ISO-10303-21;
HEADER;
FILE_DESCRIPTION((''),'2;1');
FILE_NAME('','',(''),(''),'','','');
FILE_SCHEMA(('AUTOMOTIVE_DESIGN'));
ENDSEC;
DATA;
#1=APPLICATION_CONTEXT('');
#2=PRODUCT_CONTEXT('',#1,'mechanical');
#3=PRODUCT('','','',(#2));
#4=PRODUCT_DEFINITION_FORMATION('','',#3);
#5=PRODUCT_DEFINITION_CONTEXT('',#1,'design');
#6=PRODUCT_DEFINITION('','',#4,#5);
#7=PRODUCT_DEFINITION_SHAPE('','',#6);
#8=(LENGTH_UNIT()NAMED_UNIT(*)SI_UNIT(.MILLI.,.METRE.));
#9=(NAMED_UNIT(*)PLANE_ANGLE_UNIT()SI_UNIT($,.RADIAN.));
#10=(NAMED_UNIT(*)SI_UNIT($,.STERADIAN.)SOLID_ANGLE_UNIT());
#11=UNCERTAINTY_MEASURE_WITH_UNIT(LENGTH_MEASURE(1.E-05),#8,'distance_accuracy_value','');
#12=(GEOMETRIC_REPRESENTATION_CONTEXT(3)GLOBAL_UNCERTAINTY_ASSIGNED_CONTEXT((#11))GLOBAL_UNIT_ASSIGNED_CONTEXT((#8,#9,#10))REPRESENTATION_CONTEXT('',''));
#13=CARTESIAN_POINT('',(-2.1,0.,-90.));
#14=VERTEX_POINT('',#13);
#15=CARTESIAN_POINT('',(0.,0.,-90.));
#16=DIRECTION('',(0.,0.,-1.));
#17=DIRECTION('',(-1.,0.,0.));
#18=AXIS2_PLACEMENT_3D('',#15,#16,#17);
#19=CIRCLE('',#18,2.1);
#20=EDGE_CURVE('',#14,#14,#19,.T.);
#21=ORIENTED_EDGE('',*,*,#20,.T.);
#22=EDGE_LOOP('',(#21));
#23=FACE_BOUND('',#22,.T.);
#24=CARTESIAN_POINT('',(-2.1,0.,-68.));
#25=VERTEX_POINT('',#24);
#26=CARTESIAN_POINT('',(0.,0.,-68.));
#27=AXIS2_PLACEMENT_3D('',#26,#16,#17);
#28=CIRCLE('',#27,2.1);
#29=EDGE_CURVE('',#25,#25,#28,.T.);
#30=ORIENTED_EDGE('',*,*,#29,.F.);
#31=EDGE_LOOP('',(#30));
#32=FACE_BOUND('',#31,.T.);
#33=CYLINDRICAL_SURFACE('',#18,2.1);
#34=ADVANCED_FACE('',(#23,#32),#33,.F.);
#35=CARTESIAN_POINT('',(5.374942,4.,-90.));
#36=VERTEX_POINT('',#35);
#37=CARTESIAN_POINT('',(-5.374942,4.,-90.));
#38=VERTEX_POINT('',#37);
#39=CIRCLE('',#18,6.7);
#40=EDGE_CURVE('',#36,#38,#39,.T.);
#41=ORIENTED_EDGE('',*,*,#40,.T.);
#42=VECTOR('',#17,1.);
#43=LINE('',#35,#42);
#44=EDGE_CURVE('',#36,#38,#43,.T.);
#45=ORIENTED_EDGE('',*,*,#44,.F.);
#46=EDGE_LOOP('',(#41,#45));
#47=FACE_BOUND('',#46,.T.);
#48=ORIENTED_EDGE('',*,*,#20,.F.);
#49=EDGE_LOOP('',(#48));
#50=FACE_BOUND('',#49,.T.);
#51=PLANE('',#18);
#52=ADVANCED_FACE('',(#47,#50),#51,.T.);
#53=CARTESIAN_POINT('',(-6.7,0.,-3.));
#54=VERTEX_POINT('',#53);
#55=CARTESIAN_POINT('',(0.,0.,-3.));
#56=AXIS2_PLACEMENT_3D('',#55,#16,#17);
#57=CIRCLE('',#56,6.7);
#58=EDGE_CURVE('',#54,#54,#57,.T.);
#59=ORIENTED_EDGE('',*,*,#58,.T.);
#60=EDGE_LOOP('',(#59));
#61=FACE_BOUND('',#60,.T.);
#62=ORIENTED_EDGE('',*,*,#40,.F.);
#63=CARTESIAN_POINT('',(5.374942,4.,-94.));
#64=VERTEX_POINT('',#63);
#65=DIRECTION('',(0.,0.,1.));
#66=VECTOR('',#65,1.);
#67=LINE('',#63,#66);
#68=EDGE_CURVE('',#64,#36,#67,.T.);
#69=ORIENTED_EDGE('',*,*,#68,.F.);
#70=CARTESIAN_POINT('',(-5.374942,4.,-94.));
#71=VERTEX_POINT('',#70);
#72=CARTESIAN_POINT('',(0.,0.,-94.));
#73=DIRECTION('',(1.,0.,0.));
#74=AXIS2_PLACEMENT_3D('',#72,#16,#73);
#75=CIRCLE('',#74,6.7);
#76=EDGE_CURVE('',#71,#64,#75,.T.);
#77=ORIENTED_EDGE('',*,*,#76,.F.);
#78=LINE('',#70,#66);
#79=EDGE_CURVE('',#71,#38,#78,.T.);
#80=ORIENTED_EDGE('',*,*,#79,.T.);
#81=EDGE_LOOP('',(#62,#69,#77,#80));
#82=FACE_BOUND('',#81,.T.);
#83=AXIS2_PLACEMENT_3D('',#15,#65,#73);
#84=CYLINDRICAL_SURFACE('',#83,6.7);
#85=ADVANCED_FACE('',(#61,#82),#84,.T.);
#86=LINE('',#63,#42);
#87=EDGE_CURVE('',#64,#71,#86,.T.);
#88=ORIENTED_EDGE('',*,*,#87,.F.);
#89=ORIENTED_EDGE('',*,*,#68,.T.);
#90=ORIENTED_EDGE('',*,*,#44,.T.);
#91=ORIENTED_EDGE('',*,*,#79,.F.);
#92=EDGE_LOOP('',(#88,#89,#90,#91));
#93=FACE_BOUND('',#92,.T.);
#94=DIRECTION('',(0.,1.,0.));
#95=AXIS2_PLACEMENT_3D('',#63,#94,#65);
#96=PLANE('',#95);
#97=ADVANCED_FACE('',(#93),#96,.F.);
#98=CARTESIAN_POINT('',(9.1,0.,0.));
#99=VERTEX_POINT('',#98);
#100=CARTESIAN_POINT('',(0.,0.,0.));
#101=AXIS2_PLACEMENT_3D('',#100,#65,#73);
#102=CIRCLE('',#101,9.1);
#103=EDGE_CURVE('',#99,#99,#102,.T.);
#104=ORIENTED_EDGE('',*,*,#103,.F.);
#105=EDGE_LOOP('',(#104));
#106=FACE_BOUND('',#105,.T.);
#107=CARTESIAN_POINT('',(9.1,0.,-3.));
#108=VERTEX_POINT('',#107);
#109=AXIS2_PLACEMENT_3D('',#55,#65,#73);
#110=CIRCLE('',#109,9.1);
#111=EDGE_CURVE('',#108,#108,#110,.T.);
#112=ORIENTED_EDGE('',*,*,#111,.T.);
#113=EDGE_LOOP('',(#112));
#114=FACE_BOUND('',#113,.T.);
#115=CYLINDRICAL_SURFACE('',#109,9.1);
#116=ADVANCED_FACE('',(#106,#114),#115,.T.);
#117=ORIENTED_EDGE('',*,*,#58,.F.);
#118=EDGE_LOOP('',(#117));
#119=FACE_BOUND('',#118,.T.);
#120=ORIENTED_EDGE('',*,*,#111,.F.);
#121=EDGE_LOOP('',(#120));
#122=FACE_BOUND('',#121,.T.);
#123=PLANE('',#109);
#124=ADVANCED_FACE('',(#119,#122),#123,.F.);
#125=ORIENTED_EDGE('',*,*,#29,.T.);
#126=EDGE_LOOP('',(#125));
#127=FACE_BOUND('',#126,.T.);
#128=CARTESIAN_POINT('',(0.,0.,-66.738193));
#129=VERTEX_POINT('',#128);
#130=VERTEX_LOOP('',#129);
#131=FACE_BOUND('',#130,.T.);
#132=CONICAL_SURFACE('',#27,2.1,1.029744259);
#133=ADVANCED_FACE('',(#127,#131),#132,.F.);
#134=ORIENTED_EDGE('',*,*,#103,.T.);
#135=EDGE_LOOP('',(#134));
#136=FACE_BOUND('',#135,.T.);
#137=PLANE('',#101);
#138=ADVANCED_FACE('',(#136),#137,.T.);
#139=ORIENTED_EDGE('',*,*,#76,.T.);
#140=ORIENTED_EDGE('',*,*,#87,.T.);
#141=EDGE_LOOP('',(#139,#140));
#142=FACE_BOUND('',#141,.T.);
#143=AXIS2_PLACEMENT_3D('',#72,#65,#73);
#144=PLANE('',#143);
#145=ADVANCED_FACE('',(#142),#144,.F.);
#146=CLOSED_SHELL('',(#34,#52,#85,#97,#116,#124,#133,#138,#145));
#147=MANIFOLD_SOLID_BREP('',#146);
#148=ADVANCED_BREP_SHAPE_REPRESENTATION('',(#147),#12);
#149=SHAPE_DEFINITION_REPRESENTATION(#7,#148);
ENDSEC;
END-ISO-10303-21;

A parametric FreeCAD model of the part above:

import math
import FreeCAD as App
import Part
import Sketcher
from FreeCAD import Vector
Q = App.Units.Quantity

doc = App.newDocument("Part")
body = doc.addObject("PartDesign::Body", "Body")

# Sketch on XY plane
sketch1 = body.newObject("Sketcher::SketchObject", "Sketch")
sketch1.AttachmentSupport = (doc.getObject("XY_Plane"), [""])
sketch1.MapMode = "FlatFace"
sketch1.addGeometry(Part.Circle(Vector(0, 0, 0), Vector(0, 0, 1), 9.1), False)
sketch1.addConstraint(Sketcher.Constraint("Coincident", 0, 3, -1, 1))
sketch1.addConstraint(Sketcher.Constraint("Diameter", 0, Q("18.2 mm")))
pad1 = body.newObject("PartDesign::Pad", "Pad")
pad1.Profile = sketch1
pad1.Length = 3
pad1.Reversed = True

# Sketch on XY plane
sketch2 = body.newObject("Sketcher::SketchObject", "Sketch001")
sketch2.AttachmentSupport = (doc.getObject("XY_Plane"), [""])
sketch2.MapMode = "FlatFace"
sketch2.AttachmentOffset = App.Placement(Vector(0, 0, -3), App.Rotation())
sketch2.addGeometry(Part.Circle(Vector(0, 0, 0), Vector(0, 0, 1), 6.7), False)
sketch2.addConstraint(Sketcher.Constraint("Coincident", 0, 3, -1, 1))
sketch2.addConstraint(Sketcher.Constraint("Diameter", 0, Q("13.4 mm")))
pad2 = body.newObject("PartDesign::Pad", "Pad001")
pad2.Profile = sketch2
pad2.Length = 87
pad2.Reversed = True

# Sketch on XY plane
sketch3 = body.newObject("Sketcher::SketchObject", "Sketch002")
sketch3.AttachmentSupport = (doc.getObject("XY_Plane"), [""])
sketch3.MapMode = "FlatFace"
sketch3.AttachmentOffset = App.Placement(Vector(0, 0, -90), App.Rotation())
sketch3.addGeometry(Part.Circle(Vector(0, 0, 0), Vector(0, 0, 1), 2.1), False)
sketch3.addConstraint(Sketcher.Constraint("Coincident", 0, 3, -1, 1))
sketch3.addConstraint(Sketcher.Constraint("Diameter", 0, Q("4.2 mm")))
doc.recompute()
hole = body.newObject("PartDesign::Hole", "Hole")
hole.Profile = sketch3
hole.ThreadType = "None"
hole.Diameter = 4.2
hole.DepthType = "Dimension"
hole.Depth = 22
hole.DrillPoint = "Angled"
hole.DrillPointAngle = 118
hole.Reversed = True

# Sketch on XY plane
sketch4 = body.newObject("Sketcher::SketchObject", "Sketch003")
sketch4.AttachmentSupport = (doc.getObject("XY_Plane"), [""])
sketch4.MapMode = "FlatFace"
sketch4.AttachmentOffset = App.Placement(Vector(0, 0, -90), App.Rotation())
sketch4.addGeometry(Part.LineSegment(Vector(5.374942, 4, 0), Vector(-5.374942, 4, 0)), False)
sketch4.addGeometry(Part.ArcOfCircle(Part.Circle(Vector(0, 0, 0), Vector(0, 0, 1), 6.7), math.radians(36.656405), math.radians(143.343595)), False)
sketch4.addConstraint(Sketcher.Constraint("Coincident", 0, 1, 1, 1))
sketch4.addConstraint(Sketcher.Constraint("Coincident", 1, 2, 0, 2))
sketch4.addConstraint(Sketcher.Constraint("Horizontal", 0))
sketch4.addConstraint(Sketcher.Constraint("Coincident", 1, 3, -1, 1))
sketch4.addConstraint(Sketcher.Constraint("Radius", 1, Q("6.7 mm")))
sketch4.addConstraint(Sketcher.Constraint("DistanceY", -1, 1, 0, 1, Q("4 mm")))
pad3 = body.newObject("PartDesign::Pad", "Pad002")
pad3.Profile = sketch4
pad3.Length = 4
pad3.Reversed = True

doc.recompute()
